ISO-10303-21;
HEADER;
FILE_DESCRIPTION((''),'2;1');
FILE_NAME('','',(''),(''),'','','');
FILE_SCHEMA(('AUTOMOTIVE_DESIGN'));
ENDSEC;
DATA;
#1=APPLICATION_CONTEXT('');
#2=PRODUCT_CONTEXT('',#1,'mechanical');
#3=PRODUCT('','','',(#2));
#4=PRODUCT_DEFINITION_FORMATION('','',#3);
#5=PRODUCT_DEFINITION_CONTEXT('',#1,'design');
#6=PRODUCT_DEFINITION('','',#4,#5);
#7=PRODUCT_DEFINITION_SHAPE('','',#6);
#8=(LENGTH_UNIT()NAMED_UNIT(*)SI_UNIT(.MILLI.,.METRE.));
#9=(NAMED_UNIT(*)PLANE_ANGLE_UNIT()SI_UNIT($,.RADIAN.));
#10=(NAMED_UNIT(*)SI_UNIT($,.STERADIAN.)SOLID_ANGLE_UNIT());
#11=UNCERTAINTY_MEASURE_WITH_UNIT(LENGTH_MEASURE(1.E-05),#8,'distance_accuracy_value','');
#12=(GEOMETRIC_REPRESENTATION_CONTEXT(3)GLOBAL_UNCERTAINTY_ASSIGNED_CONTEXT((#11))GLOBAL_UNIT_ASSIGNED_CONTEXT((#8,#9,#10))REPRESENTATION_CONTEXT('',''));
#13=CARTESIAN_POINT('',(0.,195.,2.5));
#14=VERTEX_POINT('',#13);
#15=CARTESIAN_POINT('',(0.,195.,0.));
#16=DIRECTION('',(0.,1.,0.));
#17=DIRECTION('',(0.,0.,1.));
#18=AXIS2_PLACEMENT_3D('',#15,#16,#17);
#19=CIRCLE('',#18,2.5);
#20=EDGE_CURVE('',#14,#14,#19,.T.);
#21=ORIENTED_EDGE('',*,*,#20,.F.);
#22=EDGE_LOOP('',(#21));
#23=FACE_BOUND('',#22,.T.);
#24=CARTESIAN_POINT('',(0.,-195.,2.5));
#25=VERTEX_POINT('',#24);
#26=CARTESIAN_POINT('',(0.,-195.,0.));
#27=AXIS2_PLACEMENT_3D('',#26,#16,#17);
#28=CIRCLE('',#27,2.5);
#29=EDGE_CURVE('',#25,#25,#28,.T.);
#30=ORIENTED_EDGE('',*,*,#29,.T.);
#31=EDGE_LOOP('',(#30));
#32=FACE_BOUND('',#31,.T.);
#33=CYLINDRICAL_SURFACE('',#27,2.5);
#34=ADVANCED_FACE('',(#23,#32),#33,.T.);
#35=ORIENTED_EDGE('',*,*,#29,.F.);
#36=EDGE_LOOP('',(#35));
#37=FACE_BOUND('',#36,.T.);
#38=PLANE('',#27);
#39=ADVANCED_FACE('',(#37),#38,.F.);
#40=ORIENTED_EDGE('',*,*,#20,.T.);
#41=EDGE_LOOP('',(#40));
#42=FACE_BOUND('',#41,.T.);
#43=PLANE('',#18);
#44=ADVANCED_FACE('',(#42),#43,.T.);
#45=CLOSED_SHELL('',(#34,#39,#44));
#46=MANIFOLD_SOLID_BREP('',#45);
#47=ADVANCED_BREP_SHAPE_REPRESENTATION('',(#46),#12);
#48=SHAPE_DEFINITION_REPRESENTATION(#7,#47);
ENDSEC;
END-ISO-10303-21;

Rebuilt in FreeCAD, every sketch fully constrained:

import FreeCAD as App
import Part
import Sketcher

V = App.Vector

doc = App.newDocument("Part")
body = doc.addObject("PartDesign::Body", "Body")

# Sketch on XZ plane
sketch1 = body.newObject("Sketcher::SketchObject", "Sketch")
sketch1.AttachmentSupport = (doc.getObject("XZ_Plane"), [""])
sketch1.MapMode = "FlatFace"
sketch1.addGeometry(Part.Circle(V(0, 0, 0), V(0, 0, 1), 2.5), False)
sketch1.addConstraint([
    Sketcher.Constraint("Coincident", 0, 3, -1, 1),
    Sketcher.Constraint("Diameter", 0, 5.0),
])
pad1 = body.newObject("PartDesign::Pad", "Pad")
pad1.Profile = sketch1
pad1.Type = "TwoLengths"
pad1.Length = 195
pad1.Length2 = 195
pad1.Reversed = True

doc.recompute()
